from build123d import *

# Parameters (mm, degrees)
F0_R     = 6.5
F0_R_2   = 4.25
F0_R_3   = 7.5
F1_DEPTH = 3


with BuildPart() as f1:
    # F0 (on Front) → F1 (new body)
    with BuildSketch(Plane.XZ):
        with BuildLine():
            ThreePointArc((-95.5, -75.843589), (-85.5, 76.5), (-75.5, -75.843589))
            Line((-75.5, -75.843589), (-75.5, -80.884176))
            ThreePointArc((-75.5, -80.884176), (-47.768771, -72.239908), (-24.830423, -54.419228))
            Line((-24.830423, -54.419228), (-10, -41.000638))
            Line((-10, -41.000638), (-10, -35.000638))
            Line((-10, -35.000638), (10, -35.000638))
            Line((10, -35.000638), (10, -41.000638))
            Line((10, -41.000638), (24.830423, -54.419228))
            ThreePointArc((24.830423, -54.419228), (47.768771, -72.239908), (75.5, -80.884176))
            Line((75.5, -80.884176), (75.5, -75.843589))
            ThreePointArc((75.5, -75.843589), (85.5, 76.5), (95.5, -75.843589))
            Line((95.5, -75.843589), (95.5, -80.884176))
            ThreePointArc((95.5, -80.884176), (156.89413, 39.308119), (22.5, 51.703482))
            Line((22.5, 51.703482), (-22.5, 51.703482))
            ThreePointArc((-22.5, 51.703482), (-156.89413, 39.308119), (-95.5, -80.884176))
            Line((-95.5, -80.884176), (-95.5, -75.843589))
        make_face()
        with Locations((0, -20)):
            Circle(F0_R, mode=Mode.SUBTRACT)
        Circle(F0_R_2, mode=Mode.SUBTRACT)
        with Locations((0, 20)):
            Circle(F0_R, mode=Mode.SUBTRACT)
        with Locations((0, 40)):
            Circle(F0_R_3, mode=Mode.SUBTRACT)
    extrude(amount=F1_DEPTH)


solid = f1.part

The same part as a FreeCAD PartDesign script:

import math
import FreeCAD as App
import Part
import Sketcher
from FreeCAD import Vector

doc = App.newDocument("Part")
body = doc.addObject("PartDesign::Body", "Body")

# Sketch on XZ plane
sketch1 = body.newObject("Sketcher::SketchObject", "Sketch")
sketch1.AttachmentSupport = (doc.getObject("XZ_Plane"), [""])
sketch1.MapMode = "FlatFace"
sketch1.addGeometry([
    Part.ArcOfCircle(Part.Circle(Vector(-85.5, 0, 0), Vector(0, 0, 1), 76.5), math.radians(-82), math.radians(262)),  # 0
    Part.LineSegment(Vector(-75.5, -75.8, 0), Vector(-75.5, -80.9, 0)),  # 1
    Part.ArcOfCircle(Part.Circle(Vector(-85.5, 0, 0), Vector(0, 0, 1), 81.5), math.radians(-83), math.radians(-42)),  # 2
    Part.LineSegment(Vector(-24.8, -54.4, 0), Vector(-10, -41, 0)),  # 3
    Part.LineSegment(Vector(-10, -41, 0), Vector(-10, -35, 0)),  # 4
    Part.LineSegment(Vector(-10, -35, 0), Vector(10, -35, 0)),  # 5
    Part.LineSegment(Vector(10, -35, 0), Vector(10, -41, 0)),  # 6
    Part.LineSegment(Vector(10, -41, 0), Vector(24.8, -54.4, 0)),  # 7
    Part.ArcOfCircle(Part.Circle(Vector(85.5, 0, 0), Vector(0, 0, 1), 81.5), math.radians(-138), math.radians(-97)),  # 8
    Part.LineSegment(Vector(75.5, -80.9, 0), Vector(75.5, -75.8, 0)),  # 9
    Part.ArcOfCircle(Part.Circle(Vector(85.5, 0, 0), Vector(0, 0, 1), 76.5), math.radians(-82), math.radians(262)),  # 10
    Part.LineSegment(Vector(95.5, -75.8, 0), Vector(95.5, -80.9, 0)),  # 11
    Part.ArcOfCircle(Part.Circle(Vector(85.5, 0, 0), Vector(0, 0, 1), 81.5), math.radians(-83), math.radians(141)),  # 12
    Part.LineSegment(Vector(22.5, 51.7, 0), Vector(-22.5, 51.7, 0)),  # 13
    Part.ArcOfCircle(Part.Circle(Vector(-85.5, 0, 0), Vector(0, 0, 1), 81.5), math.radians(39), math.radians(263)),  # 14
    Part.LineSegment(Vector(-95.5, -80.9, 0), Vector(-95.5, -75.8, 0)),  # 15
    Part.Circle(Vector(0, -20, 0), Vector(0, 0, 1), 6.5),  # 16
    Part.Circle(Vector(0, 0, 0), Vector(0, 0, 1), 4.2),  # 17
    Part.Circle(Vector(0, 20, 0), Vector(0, 0, 1), 6.5),  # 18
    Part.Circle(Vector(0, 40, 0), Vector(0, 0, 1), 7.5),  # 19
], False)
sketch1.addConstraint([
    Sketcher.Constraint("Coincident", 0, 1, 1, 1),
    Sketcher.Constraint("Coincident", 1, 2, 2, 1),
    Sketcher.Constraint("Coincident", 2, 2, 3, 1),
    Sketcher.Constraint("Coincident", 3, 2, 4, 1),
    Sketcher.Constraint("Coincident", 4, 2, 5, 1),
    Sketcher.Constraint("Coincident", 5, 2, 6, 1),
    Sketcher.Constraint("Coincident", 6, 2, 7, 1),
    Sketcher.Constraint("Coincident", 7, 2, 8, 1),
    Sketcher.Constraint("Coincident", 8, 2, 9, 1),
    Sketcher.Constraint("Coincident", 9, 2, 10, 2),
    Sketcher.Constraint("Coincident", 10, 1, 11, 1),
    Sketcher.Constraint("Coincident", 11, 2, 12, 1),
    Sketcher.Constraint("Coincident", 12, 2, 13, 1),
    Sketcher.Constraint("Coincident", 13, 2, 14, 1),
    Sketcher.Constraint("Coincident", 14, 2, 15, 1),
    Sketcher.Constraint("Coincident", 15, 2, 0, 2),
    Sketcher.Constraint("Vertical", 1),
    Sketcher.Constraint("Vertical", 4),
    Sketcher.Constraint("Horizontal", 5),
    Sketcher.Constraint("Vertical", 6),
    Sketcher.Constraint("Vertical", 9),
    Sketcher.Constraint("Vertical", 11),
    Sketcher.Constraint("Horizontal", 13),
    Sketcher.Constraint("Vertical", 15),
    Sketcher.Constraint("Coincident", 17, 3, -1, 1),
    Sketcher.Constraint("Coincident", 2, 3, 0, 3),
    Sketcher.Constraint("Coincident", 10, 3, 8, 3),
    Sketcher.Constraint("Coincident", 12, 3, 8, 3),
    Sketcher.Constraint("Coincident", 14, 3, 0, 3),
    Sketcher.Constraint("Equal", 2, 8),
    Sketcher.Constraint("Equal", 0, 10),
    Sketcher.Constraint("Equal", 8, 12),
    Sketcher.Constraint("Equal", 12, 14),
    Sketcher.Constraint("Equal", 16, 18),
    Sketcher.Constraint("Symmetric", 0, 3, 8, 3, -1, 1),
    Sketcher.Constraint("Symmetric", 16, 3, 18, 3, -1, 1),
    Sketcher.Constraint("Symmetric", 3, 2, 6, 2, -2),
    Sketcher.Constraint("Symmetric", 2, 2, 7, 2, -2),
    Sketcher.Constraint("PointOnObject", 16, 3, -2),
    Sketcher.Constraint("PointOnObject", 19, 3, -2),
    Sketcher.Constraint("Horizontal", 1, 2, 8, 2),
    Sketcher.Constraint("Horizontal", 9, 2, 10, 1),
    Sketcher.Constraint("Horizontal", 11, 2, 14, 2),
    Sketcher.Constraint("Diameter", 16, 13.0),
    Sketcher.Constraint("Diameter", 19, 15.0),
    Sketcher.Constraint("Diameter", 17, 8.5),
    Sketcher.Constraint("Radius", 0, 76.5),
    Sketcher.Constraint("Radius", 2, 81.499999),
    Sketcher.Constraint("DistanceX", 5, 1, 5, 2, 20.0),
    Sketcher.Constraint("DistanceX", 13, 2, 13, 1, 45.0),
    Sketcher.Constraint("DistanceY", 4, 1, 4, 2, 6.0),
    Sketcher.Constraint("Distance", 3, 20.0),
    Sketcher.Constraint("DistanceY", 16, 3, -1, 1, 20.0),
    Sketcher.Constraint("DistanceY", -1, 1, 19, 3, 40.0),
    Sketcher.Constraint("DistanceX", 2, 3, 8, 3, 170.999999),
    Sketcher.Constraint("DistanceX", 2, 3, 0, 1, 9.999999),
    Sketcher.Constraint("DistanceY", 2, 2, -1, 1, 54.419228),
])
pad1 = body.newObject("PartDesign::Pad", "Pad")
pad1.Profile = sketch1
pad1.Length = 3

doc.recompute()
